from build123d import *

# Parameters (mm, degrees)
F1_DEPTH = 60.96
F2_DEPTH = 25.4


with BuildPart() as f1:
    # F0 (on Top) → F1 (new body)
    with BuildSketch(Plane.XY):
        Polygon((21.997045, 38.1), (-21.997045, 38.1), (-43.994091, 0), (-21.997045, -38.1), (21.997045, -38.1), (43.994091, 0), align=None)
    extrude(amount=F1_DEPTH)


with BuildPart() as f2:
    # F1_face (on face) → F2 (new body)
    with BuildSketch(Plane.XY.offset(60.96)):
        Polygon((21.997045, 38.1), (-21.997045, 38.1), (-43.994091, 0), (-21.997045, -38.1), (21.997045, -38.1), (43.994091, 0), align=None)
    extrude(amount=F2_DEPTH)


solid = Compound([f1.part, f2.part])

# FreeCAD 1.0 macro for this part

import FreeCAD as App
import Part
import Sketcher
from FreeCAD import Vector
Q = App.Units.Quantity


def add_polygon(sketch, points):
    """Adds a closed chain of lines whose ends are joined by coincident constraints."""
    first, n = sketch.GeometryCount, len(points)
    for a, b in zip(points, points[1:] + points[:1]):
        sketch.addGeometry(Part.LineSegment(App.Vector(*a, 0), App.Vector(*b, 0)), False)
    for i in range(n):
        sketch.addConstraint(Sketcher.Constraint("Coincident", first + i, 2, first + (i + 1) % n, 1))

doc = App.newDocument("Part")
body = doc.addObject("PartDesign::Body", "Body")

# Sketch on XY plane
sketch1 = doc.addObject("Sketcher::SketchObject", "Sketch")
body.addObject(sketch1)
sketch1.AttachmentSupport = (doc.XY_Plane, [""])
sketch1.MapMode = "FlatFace"
add_polygon(sketch1, [(22, 38), (-22, 38), (-44, 0), (-22, -38), (22, -38), (44, 0)])  # lines 0-5
sketch1.addConstraint([
    Sketcher.Constraint("Horizontal", 0),
    Sketcher.Constraint("Horizontal", 3),
    Sketcher.Constraint("Symmetric", 0, 2, 3, 2, -1, 1),
    Sketcher.Constraint("Symmetric", 1, 2, 4, 2, -1, 1),
    Sketcher.Constraint("PointOnObject", 1, 2, -1),
    Sketcher.Constraint("Parallel", 2, 5),
    Sketcher.Constraint("Vertical", 0, 2, 2, 2),
    Sketcher.Constraint("Angle", 1, Q("-120.000001 deg")),
    Sketcher.Constraint("DistanceY", 2, 2, 0, 2, Q("3 in")),
    Sketcher.Constraint("DistanceX", 0, 2, 0, 1, Q("43.99409 mm")),
])
pad1 = doc.addObject("PartDesign::Pad", "Pad")
body.addObject(pad1)
pad1.Profile = sketch1
pad1.Length = Q("2.4 in")
body2 = doc.addObject("PartDesign::Body", "Body001")

# Sketch on XY plane
sketch2 = doc.addObject("Sketcher::SketchObject", "Sketch001")
body2.addObject(sketch2)
sketch2.AttachmentSupport = (doc.getObject("XY_Plane001"), [""])
sketch2.MapMode = "FlatFace"
sketch2.AttachmentOffset = App.Placement(Vector(0, 0, 2.4 * 25.4), App.Rotation())
add_polygon(sketch2, [(22, 38), (-22, 38), (-44, 0), (-22, -38), (22, -38), (44, 0)])  # lines 0-5
sketch2.addConstraint([
    Sketcher.Constraint("Horizontal", 0),
    Sketcher.Constraint("Horizontal", 3),
    Sketcher.Constraint("Symmetric", 0, 2, 3, 2, -1, 1),
    Sketcher.Constraint("Symmetric", 1, 2, 4, 2, -1, 1),
    Sketcher.Constraint("PointOnObject", 1, 2, -1),
    Sketcher.Constraint("Parallel", 2, 5),
    Sketcher.Constraint("Vertical", 0, 2, 2, 2),
    Sketcher.Constraint("Angle", 1, Q("-120.000001 deg")),
    Sketcher.Constraint("DistanceY", 2, 2, 0, 2, Q("3 in")),
    Sketcher.Constraint("DistanceX", 0, 2, 0, 1, Q("43.99409 mm")),
])
pad2 = doc.addObject("PartDesign::Pad", "Pad001")
body2.addObject(pad2)
pad2.Profile = sketch2
pad2.Length = Q("1 in")

doc.recompute()
